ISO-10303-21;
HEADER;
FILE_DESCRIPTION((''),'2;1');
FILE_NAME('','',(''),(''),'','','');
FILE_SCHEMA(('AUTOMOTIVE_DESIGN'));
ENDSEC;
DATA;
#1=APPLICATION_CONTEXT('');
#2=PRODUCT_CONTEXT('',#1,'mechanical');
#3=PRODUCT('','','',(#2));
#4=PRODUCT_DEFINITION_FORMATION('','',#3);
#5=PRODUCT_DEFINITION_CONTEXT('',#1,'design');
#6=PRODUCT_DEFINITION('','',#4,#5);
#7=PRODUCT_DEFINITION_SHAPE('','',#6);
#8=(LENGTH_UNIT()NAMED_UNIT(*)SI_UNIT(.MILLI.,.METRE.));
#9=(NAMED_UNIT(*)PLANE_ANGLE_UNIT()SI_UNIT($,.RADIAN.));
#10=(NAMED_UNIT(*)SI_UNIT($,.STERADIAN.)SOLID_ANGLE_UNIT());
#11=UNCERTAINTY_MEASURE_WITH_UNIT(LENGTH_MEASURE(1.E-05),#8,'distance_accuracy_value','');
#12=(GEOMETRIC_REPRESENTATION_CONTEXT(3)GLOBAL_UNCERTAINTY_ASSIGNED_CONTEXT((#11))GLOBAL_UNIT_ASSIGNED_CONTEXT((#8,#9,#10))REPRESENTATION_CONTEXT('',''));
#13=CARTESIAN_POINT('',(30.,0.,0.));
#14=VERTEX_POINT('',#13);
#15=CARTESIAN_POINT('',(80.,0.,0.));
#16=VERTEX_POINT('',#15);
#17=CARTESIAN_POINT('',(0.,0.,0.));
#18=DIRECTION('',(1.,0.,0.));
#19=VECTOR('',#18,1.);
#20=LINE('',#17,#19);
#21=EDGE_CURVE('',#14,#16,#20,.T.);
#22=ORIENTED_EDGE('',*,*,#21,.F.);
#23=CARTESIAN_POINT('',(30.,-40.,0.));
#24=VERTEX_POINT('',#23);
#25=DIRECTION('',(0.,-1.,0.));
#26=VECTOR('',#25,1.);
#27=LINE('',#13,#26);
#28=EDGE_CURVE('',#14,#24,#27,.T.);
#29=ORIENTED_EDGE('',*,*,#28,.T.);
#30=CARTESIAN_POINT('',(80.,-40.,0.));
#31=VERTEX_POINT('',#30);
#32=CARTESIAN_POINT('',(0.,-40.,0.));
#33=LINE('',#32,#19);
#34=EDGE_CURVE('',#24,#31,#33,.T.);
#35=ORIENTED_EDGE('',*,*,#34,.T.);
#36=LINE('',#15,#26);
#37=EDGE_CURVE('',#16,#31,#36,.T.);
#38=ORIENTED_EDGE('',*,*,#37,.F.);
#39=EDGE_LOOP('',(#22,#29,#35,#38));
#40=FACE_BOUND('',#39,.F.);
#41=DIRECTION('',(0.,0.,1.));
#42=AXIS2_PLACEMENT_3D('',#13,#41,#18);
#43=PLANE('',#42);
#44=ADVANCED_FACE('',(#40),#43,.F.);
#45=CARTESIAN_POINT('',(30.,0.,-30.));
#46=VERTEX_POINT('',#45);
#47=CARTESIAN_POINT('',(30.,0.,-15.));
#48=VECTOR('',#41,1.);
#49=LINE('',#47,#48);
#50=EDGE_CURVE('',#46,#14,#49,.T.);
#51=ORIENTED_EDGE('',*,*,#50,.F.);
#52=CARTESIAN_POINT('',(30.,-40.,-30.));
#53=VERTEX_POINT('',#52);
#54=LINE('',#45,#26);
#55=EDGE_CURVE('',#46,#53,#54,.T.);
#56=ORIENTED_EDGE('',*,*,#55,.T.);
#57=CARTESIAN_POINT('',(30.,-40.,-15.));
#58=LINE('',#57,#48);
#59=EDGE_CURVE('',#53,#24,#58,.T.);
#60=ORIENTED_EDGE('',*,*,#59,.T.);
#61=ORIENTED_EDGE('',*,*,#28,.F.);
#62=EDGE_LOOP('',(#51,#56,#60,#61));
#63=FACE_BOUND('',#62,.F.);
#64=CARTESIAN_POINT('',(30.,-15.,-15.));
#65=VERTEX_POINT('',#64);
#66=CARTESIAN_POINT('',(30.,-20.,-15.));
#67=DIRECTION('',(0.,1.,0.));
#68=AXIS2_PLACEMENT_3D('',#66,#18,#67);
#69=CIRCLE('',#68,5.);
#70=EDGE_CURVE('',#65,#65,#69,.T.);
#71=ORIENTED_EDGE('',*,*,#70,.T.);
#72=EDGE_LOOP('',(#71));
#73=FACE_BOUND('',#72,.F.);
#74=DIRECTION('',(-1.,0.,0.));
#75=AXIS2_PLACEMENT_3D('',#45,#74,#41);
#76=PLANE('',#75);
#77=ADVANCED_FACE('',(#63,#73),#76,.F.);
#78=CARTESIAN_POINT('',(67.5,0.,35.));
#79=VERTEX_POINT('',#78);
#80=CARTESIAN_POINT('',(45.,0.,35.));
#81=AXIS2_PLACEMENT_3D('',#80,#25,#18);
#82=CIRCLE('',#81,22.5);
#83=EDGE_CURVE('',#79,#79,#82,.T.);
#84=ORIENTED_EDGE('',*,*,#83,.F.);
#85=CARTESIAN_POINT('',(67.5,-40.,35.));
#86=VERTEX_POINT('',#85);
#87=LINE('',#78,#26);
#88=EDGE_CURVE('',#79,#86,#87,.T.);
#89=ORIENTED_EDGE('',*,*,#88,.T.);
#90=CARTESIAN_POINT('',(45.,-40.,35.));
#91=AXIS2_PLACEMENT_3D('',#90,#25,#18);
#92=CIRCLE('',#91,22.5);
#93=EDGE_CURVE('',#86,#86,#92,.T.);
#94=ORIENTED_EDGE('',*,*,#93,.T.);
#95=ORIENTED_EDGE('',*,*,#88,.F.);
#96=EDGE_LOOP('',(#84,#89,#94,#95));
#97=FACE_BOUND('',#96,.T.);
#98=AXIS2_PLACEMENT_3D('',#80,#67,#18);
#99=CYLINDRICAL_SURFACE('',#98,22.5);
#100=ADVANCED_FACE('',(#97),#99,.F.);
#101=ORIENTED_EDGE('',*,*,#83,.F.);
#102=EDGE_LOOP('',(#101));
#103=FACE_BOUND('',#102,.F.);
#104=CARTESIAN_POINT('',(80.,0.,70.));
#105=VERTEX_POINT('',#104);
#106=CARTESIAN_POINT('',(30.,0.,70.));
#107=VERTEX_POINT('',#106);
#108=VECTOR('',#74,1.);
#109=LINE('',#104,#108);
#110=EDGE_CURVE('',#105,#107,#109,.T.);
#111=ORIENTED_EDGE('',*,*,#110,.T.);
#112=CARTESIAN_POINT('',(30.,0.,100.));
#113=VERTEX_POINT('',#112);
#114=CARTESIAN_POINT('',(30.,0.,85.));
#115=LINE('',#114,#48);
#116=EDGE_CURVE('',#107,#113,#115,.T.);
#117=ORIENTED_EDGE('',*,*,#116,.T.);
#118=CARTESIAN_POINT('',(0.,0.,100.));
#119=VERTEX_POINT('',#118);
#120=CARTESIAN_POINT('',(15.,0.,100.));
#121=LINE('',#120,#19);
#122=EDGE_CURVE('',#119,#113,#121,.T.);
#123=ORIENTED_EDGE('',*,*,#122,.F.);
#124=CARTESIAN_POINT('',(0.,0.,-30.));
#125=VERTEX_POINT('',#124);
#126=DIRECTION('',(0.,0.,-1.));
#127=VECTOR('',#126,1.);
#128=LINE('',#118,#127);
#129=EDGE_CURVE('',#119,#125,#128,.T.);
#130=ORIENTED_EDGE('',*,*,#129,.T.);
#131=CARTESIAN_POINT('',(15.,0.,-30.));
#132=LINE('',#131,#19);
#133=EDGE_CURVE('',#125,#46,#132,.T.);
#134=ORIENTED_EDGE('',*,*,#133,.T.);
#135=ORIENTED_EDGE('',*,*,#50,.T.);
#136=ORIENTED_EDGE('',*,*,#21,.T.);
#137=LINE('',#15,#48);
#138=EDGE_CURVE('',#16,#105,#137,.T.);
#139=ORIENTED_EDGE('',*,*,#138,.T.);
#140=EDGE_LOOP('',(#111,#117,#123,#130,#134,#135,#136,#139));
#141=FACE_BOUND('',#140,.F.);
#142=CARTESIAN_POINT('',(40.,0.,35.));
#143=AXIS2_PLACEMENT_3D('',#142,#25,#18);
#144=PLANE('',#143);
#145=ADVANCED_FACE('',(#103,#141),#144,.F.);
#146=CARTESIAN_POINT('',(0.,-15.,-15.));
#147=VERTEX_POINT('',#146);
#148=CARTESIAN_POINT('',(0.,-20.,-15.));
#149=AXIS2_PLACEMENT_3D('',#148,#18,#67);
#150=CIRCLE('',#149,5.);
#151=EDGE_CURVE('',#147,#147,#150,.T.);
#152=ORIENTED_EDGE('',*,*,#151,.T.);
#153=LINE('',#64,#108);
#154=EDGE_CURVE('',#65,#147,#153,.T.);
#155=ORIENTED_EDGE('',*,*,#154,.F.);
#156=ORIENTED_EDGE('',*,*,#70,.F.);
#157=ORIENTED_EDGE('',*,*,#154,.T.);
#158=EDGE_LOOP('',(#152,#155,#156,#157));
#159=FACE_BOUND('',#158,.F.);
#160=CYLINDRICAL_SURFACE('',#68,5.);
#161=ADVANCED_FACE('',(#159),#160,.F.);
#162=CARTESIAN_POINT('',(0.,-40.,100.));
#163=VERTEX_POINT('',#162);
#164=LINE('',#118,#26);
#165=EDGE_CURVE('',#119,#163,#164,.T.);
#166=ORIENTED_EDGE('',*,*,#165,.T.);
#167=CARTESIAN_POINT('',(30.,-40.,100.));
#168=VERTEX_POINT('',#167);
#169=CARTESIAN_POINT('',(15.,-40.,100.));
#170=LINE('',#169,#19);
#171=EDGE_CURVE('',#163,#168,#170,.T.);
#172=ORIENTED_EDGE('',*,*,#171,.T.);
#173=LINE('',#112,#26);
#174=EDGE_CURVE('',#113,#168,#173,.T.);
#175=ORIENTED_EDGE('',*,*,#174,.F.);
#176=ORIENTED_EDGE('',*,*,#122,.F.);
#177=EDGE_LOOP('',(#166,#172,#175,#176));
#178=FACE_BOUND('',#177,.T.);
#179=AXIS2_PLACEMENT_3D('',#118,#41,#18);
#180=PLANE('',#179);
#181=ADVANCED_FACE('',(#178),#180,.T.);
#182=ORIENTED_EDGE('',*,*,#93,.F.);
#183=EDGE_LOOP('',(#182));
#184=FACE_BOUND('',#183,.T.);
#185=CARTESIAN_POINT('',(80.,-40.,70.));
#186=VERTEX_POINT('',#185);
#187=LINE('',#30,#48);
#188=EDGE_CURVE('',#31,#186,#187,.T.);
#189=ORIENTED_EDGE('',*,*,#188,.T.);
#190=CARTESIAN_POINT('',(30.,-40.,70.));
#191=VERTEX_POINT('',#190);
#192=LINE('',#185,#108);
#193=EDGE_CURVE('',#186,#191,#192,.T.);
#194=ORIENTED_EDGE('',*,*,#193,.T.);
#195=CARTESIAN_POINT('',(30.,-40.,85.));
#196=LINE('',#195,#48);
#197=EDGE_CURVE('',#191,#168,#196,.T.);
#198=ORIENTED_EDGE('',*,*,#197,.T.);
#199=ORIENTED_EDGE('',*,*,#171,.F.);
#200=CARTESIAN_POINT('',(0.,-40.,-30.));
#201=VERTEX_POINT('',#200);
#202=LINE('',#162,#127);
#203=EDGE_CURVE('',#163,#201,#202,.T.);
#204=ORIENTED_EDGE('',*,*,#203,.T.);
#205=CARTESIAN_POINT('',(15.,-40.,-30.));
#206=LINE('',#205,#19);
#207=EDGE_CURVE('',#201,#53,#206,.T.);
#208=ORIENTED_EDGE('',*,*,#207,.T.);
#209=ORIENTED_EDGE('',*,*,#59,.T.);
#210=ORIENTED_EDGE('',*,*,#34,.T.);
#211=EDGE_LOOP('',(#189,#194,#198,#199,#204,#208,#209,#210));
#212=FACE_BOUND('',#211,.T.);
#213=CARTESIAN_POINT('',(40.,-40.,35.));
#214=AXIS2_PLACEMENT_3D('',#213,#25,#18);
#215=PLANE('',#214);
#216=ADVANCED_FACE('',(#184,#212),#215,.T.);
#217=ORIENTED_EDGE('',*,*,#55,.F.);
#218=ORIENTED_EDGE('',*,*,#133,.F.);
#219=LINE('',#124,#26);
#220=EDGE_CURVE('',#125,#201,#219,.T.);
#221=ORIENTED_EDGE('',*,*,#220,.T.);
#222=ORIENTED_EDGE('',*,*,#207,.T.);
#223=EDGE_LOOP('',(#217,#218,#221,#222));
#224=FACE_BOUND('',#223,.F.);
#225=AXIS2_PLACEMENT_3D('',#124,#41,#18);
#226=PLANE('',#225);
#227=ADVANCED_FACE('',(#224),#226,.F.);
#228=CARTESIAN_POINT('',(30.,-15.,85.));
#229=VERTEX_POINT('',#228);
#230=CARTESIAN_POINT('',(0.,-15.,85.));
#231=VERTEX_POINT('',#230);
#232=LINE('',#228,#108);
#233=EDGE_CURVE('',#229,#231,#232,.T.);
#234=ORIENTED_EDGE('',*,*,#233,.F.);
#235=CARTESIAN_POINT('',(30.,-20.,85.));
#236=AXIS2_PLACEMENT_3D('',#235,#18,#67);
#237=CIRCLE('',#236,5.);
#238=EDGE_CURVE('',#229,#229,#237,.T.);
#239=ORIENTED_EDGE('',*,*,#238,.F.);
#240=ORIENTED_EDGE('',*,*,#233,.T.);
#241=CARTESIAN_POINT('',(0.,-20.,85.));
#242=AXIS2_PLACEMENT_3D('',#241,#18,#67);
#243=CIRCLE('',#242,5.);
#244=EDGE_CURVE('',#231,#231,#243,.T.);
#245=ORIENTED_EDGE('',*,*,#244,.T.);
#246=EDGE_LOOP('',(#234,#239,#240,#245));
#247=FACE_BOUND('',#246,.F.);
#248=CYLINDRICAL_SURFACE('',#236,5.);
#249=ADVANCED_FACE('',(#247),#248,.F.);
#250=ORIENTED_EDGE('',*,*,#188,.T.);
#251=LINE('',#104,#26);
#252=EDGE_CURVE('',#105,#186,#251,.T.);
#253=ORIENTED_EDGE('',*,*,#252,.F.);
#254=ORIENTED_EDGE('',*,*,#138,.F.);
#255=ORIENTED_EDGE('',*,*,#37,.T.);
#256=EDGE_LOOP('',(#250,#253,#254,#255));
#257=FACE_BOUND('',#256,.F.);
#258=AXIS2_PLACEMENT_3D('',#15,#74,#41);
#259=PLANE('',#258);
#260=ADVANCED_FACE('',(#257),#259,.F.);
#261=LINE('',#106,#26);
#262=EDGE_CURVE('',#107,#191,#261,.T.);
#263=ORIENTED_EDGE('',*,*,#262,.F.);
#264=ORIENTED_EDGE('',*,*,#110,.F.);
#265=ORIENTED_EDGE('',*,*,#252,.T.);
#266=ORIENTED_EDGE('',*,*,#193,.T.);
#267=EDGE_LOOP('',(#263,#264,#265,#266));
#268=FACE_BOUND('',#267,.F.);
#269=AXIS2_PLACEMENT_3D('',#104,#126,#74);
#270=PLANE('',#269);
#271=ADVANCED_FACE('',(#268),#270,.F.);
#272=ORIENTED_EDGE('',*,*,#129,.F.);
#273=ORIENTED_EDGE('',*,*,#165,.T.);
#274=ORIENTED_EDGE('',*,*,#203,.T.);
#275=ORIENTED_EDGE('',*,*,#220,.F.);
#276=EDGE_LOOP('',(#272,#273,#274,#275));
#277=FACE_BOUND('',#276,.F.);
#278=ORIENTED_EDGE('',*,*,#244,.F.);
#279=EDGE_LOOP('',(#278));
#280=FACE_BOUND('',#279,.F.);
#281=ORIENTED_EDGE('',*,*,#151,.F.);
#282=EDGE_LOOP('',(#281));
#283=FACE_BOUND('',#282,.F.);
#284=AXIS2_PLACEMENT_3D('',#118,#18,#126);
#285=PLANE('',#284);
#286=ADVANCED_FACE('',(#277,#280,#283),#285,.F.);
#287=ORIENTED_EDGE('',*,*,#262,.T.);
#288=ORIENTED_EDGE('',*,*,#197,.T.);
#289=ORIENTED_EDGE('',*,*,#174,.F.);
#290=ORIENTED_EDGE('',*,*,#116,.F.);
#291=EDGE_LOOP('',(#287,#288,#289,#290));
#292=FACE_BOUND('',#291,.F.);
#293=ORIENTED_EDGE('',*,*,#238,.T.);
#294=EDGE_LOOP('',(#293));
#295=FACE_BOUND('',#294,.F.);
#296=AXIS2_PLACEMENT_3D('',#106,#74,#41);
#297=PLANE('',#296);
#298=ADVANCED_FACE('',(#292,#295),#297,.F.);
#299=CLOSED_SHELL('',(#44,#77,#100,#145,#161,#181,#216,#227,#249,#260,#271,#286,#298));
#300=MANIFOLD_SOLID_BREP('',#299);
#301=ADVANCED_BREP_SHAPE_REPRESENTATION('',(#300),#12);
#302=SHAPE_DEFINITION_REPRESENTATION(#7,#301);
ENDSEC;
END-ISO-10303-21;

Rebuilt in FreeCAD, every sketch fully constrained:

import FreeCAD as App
import Part
import Sketcher
Q = App.Units.Quantity

doc = App.newDocument("Part")
body = doc.addObject("PartDesign::Body", "Body")

# Sketch on XZ plane
sketch1 = body.newObject("Sketcher::SketchObject", "Sketch")
sketch1.AttachmentSupport = (doc.getObject("XZ_Plane"), [""])
sketch1.MapMode = "FlatFace"
sketch1.addGeometry([
    Part.LineSegment(App.Vector(0, -30, 0), App.Vector(30, -30, 0)),  # 0
    Part.LineSegment(App.Vector(30, -30, 0), App.Vector(30, 0, 0)),  # 1
    Part.LineSegment(App.Vector(30, 0, 0), App.Vector(80, 0, 0)),  # 2
    Part.LineSegment(App.Vector(80, 0, 0), App.Vector(80, 70, 0)),  # 3
    Part.LineSegment(App.Vector(80, 70, 0), App.Vector(30, 70, 0)),  # 4
    Part.LineSegment(App.Vector(30, 70, 0), App.Vector(30, 100, 0)),  # 5
    Part.LineSegment(App.Vector(30, 100, 0), App.Vector(0, 100, 0)),  # 6
    Part.LineSegment(App.Vector(0, 100, 0), App.Vector(0, -30, 0)),  # 7
    Part.Circle(App.Vector(45, 35, 0), App.Vector(0, 0, 1), 22.5),  # 8
], False)
sketch1.addConstraint([
    Sketcher.Constraint("Coincident", 0, 2, 1, 1),
    Sketcher.Constraint("Coincident", 1, 2, 2, 1),
    Sketcher.Constraint("Coincident", 2, 2, 3, 1),
    Sketcher.Constraint("Coincident", 3, 2, 4, 1),
    Sketcher.Constraint("Coincident", 4, 2, 5, 1),
    Sketcher.Constraint("Coincident", 5, 2, 6, 1),
    Sketcher.Constraint("Coincident", 6, 2, 7, 1),
    Sketcher.Constraint("Coincident", 7, 2, 0, 1),
    Sketcher.Constraint("Horizontal", 0),
    Sketcher.Constraint("Vertical", 1),
    Sketcher.Constraint("Horizontal", 2),
    Sketcher.Constraint("Vertical", 3),
    Sketcher.Constraint("Horizontal", 4),
    Sketcher.Constraint("Vertical", 5),
    Sketcher.Constraint("Horizontal", 6),
    Sketcher.Constraint("Vertical", 7),
    Sketcher.Constraint("PointOnObject", 1, 2, -1),
    Sketcher.Constraint("PointOnObject", 6, 2, -2),
    Sketcher.Constraint("Vertical", 1, 2, 4, 2),
    Sketcher.Constraint("Equal", 6, 1),
    Sketcher.Constraint("Equal", 1, 5),
    Sketcher.Constraint("Diameter", 8, Q("45 mm")),
    Sketcher.Constraint("DistanceX", 0, 1, 0, 2, Q("30 mm")),
    Sketcher.Constraint("DistanceX", 2, 1, 2, 2, Q("50 mm")),
    Sketcher.Constraint("DistanceY", 3, 1, 3, 2, Q("70 mm")),
    Sketcher.Constraint("DistanceX", -1, 1, 8, 3, Q("45 mm")),
    Sketcher.Constraint("DistanceY", -1, 1, 8, 3, Q("35 mm")),
])
pad1 = body.newObject("PartDesign::Pad", "Pad")
pad1.Profile = sketch1
pad1.Length = 40

# Sketch on YZ plane
sketch2 = body.newObject("Sketcher::SketchObject", "Sketch001")
sketch2.AttachmentSupport = (doc.getObject("YZ_Plane"), [""])
sketch2.MapMode = "FlatFace"
sketch2.AttachmentOffset = App.Placement(App.Vector(0, 0, 30), App.Rotation())
sketch2.addGeometry([
    Part.Circle(App.Vector(-20, 85, 0), App.Vector(0, 0, 1), 5),
    Part.Circle(App.Vector(-20, -15, 0), App.Vector(0, 0, 1), 5),
], False)
sketch2.addConstraint([
    Sketcher.Constraint("Equal", 0, 1),
    Sketcher.Constraint("Vertical", 0, 3, 1, 3),
    Sketcher.Constraint("Diameter", 0, Q("10 mm")),
    Sketcher.Constraint("DistanceX", 0, 3, -1, 1, Q("20 mm")),
    Sketcher.Constraint("DistanceY", -1, 1, 0, 3, Q("85 mm")),
    Sketcher.Constraint("DistanceY", 1, 3, -1, 1, Q("15 mm")),
])
pocket1 = body.newObject("PartDesign::Pocket", "Pocket")
pocket1.Profile = sketch2
pocket1.Type = "ThroughAll"

doc.recompute()
